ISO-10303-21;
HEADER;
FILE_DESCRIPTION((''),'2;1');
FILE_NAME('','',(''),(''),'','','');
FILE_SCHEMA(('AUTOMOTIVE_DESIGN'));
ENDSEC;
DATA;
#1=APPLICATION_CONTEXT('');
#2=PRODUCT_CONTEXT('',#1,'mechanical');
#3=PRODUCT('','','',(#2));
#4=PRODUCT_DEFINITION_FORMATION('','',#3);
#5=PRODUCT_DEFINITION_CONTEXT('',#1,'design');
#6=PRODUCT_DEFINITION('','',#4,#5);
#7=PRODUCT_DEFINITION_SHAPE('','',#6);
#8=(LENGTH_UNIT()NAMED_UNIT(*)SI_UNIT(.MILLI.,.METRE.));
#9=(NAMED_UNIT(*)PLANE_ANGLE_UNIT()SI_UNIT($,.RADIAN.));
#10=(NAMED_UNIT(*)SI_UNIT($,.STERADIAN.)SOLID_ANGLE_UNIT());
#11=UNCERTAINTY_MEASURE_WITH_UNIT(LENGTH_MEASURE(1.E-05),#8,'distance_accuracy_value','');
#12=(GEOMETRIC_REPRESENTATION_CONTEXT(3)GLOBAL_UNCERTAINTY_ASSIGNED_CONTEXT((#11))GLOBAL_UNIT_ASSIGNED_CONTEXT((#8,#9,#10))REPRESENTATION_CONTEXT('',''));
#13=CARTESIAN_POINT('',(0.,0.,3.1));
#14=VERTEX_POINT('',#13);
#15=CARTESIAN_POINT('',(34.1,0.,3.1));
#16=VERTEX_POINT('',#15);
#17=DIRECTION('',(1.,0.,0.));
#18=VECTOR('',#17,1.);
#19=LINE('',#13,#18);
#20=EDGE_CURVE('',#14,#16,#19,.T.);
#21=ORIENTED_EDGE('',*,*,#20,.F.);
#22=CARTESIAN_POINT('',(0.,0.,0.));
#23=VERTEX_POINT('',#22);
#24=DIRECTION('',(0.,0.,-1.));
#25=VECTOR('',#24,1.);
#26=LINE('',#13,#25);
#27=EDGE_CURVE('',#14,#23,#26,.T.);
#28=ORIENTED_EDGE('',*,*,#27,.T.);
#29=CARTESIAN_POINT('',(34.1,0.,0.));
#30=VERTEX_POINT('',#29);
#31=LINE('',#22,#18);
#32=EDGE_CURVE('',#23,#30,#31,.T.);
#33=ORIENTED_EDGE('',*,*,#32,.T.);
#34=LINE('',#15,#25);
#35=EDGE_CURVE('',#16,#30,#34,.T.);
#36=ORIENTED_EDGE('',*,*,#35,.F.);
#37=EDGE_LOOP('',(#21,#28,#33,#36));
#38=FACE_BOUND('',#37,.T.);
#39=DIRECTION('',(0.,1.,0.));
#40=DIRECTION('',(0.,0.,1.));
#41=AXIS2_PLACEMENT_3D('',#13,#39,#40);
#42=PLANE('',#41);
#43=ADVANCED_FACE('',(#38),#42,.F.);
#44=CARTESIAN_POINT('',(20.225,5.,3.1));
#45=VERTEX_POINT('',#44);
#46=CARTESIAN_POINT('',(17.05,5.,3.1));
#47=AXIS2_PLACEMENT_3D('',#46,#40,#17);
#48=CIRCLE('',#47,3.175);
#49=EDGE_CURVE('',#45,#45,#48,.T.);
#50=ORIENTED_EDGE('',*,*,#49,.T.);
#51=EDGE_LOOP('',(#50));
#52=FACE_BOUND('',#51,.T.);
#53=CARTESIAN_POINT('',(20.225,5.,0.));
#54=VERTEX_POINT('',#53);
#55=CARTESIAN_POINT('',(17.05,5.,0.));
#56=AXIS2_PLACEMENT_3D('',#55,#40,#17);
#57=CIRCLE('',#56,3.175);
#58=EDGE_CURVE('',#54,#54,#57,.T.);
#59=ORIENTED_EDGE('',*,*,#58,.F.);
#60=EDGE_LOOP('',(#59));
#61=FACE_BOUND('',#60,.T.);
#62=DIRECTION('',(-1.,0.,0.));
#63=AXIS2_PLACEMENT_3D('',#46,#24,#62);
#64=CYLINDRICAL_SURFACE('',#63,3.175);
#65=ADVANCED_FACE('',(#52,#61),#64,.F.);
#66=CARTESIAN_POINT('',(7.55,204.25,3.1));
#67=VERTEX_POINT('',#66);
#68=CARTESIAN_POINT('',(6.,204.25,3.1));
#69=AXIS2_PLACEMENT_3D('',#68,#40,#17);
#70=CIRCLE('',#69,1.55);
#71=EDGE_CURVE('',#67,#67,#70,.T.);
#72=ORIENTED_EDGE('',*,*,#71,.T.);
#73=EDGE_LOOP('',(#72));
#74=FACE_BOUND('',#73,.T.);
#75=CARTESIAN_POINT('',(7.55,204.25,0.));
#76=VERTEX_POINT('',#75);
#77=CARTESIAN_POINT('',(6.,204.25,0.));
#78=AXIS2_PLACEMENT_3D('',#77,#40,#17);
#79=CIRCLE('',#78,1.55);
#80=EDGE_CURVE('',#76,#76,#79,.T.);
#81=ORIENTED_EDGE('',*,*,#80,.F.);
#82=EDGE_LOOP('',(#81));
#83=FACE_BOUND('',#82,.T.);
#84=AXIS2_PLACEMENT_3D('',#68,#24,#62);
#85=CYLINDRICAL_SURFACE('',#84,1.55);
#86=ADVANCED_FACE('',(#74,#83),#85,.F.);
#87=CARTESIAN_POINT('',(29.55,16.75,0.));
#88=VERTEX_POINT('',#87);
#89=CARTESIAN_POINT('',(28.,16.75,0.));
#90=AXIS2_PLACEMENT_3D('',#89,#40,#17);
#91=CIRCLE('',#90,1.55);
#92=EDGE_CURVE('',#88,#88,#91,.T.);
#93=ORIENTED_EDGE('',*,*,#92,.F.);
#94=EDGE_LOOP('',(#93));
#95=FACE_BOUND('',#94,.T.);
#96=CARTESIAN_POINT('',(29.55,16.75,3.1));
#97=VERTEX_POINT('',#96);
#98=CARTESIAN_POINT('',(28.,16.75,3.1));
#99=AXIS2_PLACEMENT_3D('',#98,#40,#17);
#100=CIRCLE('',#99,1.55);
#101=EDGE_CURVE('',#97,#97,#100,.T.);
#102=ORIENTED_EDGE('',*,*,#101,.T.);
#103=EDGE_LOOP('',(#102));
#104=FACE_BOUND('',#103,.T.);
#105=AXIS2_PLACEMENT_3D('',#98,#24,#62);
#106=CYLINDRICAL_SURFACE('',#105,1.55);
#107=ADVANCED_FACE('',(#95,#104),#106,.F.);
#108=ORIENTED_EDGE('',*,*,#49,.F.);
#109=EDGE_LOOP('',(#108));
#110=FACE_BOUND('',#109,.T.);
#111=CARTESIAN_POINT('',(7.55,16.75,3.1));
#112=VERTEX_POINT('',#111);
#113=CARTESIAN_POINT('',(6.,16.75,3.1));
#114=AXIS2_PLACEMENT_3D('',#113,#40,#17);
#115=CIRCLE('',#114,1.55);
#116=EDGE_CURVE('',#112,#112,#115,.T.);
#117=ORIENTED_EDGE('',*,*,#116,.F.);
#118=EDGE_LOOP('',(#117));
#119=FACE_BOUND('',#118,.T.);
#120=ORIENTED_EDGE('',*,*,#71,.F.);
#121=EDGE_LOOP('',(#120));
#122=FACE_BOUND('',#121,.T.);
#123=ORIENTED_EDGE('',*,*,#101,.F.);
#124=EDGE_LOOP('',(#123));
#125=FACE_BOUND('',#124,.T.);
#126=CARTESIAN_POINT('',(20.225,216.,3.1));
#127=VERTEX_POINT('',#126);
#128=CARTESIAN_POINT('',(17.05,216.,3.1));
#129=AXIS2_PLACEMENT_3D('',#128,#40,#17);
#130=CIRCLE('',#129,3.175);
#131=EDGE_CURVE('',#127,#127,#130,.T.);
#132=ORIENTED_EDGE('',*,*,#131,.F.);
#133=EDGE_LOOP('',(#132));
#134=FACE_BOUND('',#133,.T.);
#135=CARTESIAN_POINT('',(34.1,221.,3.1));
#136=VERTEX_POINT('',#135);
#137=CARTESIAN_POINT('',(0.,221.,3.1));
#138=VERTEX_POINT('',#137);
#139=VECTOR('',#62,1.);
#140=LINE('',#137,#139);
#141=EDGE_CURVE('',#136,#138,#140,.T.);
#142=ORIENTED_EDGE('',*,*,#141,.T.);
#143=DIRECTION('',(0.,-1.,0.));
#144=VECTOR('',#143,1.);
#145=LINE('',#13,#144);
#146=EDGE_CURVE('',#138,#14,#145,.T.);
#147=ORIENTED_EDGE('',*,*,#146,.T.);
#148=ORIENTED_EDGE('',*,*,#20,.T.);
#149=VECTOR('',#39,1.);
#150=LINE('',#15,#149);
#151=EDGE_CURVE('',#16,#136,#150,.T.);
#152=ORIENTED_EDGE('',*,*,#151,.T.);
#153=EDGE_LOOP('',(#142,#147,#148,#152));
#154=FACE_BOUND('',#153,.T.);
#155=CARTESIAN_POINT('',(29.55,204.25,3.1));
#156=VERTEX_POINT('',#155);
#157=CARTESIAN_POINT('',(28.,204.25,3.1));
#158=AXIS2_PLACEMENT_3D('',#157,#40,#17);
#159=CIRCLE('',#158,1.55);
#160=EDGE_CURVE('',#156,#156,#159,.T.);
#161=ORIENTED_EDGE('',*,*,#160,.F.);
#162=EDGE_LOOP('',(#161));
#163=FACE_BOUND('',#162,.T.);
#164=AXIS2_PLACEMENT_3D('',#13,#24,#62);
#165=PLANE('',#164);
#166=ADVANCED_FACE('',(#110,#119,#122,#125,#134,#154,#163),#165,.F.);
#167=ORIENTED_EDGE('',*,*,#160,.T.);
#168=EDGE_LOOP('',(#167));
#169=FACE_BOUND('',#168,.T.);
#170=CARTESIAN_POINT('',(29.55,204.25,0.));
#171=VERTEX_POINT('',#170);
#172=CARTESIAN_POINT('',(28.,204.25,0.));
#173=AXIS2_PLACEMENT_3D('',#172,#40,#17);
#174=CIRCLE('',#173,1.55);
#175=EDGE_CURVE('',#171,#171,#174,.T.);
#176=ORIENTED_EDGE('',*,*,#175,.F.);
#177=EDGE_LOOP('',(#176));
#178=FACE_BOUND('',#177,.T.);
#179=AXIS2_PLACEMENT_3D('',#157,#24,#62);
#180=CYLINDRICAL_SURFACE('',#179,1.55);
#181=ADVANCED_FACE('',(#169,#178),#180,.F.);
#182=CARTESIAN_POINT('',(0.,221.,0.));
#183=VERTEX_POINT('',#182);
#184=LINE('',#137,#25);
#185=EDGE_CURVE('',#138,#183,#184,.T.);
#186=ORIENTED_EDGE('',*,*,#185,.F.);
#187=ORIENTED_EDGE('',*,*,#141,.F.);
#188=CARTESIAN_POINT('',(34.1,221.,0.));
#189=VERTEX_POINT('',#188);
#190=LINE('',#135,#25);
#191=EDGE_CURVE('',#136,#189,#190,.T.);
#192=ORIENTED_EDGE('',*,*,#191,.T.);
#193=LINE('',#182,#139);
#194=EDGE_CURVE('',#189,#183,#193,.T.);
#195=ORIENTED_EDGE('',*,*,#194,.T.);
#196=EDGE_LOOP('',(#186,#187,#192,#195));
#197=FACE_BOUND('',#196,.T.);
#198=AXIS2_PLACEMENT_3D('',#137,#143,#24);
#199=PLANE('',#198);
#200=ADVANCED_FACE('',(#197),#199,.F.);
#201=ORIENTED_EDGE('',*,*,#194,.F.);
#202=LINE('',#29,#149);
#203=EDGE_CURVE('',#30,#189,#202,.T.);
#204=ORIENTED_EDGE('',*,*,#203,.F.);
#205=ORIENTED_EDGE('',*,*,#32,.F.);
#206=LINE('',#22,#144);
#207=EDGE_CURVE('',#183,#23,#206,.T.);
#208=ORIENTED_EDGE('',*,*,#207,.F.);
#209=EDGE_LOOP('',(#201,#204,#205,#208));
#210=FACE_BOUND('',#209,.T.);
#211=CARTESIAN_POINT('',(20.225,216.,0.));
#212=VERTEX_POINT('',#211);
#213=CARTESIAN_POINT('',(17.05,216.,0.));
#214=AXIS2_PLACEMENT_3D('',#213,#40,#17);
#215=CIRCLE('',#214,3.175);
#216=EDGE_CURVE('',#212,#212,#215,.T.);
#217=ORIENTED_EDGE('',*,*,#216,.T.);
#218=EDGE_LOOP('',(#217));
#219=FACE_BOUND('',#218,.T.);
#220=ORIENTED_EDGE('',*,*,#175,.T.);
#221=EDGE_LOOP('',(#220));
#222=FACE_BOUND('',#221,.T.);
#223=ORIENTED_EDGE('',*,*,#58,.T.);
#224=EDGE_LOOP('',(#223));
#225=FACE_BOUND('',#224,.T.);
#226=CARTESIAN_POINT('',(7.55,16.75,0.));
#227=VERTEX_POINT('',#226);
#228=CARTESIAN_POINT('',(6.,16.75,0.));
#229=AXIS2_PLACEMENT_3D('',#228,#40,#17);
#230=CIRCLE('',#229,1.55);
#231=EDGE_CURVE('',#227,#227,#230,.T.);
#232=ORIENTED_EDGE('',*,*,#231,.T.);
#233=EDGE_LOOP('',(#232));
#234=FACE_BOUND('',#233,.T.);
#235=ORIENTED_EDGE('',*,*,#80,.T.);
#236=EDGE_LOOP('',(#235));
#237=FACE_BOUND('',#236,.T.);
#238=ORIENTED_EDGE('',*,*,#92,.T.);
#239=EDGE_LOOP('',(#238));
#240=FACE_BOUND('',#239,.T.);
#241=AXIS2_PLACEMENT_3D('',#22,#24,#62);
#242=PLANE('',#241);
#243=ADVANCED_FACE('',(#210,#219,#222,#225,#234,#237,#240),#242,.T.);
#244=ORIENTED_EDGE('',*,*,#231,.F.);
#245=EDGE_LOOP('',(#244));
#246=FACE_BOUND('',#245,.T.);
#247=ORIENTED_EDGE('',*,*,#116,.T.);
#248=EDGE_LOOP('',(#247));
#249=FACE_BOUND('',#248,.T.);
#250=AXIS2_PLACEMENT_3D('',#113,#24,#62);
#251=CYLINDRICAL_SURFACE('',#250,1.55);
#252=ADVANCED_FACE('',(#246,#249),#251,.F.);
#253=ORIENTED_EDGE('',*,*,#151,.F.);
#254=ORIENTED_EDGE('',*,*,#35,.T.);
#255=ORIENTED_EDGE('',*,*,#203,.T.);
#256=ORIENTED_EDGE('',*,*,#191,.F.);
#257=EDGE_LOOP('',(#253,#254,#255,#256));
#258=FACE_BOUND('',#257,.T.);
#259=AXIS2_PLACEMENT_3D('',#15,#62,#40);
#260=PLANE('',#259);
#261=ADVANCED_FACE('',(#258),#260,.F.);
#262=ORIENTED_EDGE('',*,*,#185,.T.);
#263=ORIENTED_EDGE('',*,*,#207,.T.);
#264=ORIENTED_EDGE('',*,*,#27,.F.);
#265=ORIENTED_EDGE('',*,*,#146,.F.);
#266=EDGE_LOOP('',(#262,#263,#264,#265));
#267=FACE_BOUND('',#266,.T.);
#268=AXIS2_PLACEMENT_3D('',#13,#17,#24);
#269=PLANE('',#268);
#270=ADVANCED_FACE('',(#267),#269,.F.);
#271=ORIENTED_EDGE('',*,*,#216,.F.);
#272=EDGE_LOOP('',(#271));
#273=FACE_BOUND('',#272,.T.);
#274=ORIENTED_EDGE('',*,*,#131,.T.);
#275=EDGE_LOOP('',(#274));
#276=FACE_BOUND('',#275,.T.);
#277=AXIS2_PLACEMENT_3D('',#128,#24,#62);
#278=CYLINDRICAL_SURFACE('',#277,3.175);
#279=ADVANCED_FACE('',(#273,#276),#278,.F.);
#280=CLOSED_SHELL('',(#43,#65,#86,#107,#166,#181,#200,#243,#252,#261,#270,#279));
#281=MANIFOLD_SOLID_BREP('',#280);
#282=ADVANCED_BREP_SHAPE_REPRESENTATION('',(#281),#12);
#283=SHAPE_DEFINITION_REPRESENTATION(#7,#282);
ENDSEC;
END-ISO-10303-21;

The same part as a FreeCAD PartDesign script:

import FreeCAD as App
import Part
import Sketcher

doc = App.newDocument("Part")
body = doc.addObject("PartDesign::Body", "Body")

# Sketch on XY plane
sketch1 = body.newObject("Sketcher::SketchObject", "Sketch")
sketch1.AttachmentSupport = (doc.getObject("XY_Plane"), [""])
sketch1.MapMode = "FlatFace"
sketch1.addGeometry(Part.LineSegment(App.Vector(0, 221, 0), App.Vector(0, 0, 0)), False)
sketch1.addGeometry(Part.LineSegment(App.Vector(0, 0, 0), App.Vector(34.1, 0, 0)), False)
sketch1.addGeometry(Part.LineSegment(App.Vector(34.1, 0, 0), App.Vector(34.1, 221, 0)), False)
sketch1.addGeometry(Part.LineSegment(App.Vector(34.1, 221, 0), App.Vector(0, 221, 0)), False)
sketch1.addGeometry(Part.Circle(App.Vector(6, 16.75, 0), App.Vector(0, 0, 1), 1.55), False)
sketch1.addGeometry(Part.Circle(App.Vector(17.05, 5, 0), App.Vector(0, 0, 1), 3.175), False)
sketch1.addGeometry(Part.Circle(App.Vector(28, 16.75, 0), App.Vector(0, 0, 1), 1.55), False)
sketch1.addGeometry(Part.Circle(App.Vector(6, 204.25, 0), App.Vector(0, 0, 1), 1.55), False)
sketch1.addGeometry(Part.Circle(App.Vector(17.05, 216, 0), App.Vector(0, 0, 1), 3.175), False)
sketch1.addGeometry(Part.Circle(App.Vector(28, 204.25, 0), App.Vector(0, 0, 1), 1.55), False)
sketch1.addConstraint(Sketcher.Constraint("Coincident", 0, 2, 1, 1))
sketch1.addConstraint(Sketcher.Constraint("Coincident", 1, 2, 2, 1))
sketch1.addConstraint(Sketcher.Constraint("Coincident", 2, 2, 3, 1))
sketch1.addConstraint(Sketcher.Constraint("Coincident", 3, 2, 0, 1))
sketch1.addConstraint(Sketcher.Constraint("Vertical", 0))
sketch1.addConstraint(Sketcher.Constraint("Horizontal", 1))
sketch1.addConstraint(Sketcher.Constraint("Vertical", 2))
sketch1.addConstraint(Sketcher.Constraint("Horizontal", 3))
sketch1.addConstraint(Sketcher.Constraint("Coincident", 0, 2, -1, 1))
sketch1.addConstraint(Sketcher.Constraint("Equal", 4, 6))
sketch1.addConstraint(Sketcher.Constraint("Equal", 6, 7))
sketch1.addConstraint(Sketcher.Constraint("Equal", 5, 8))
sketch1.addConstraint(Sketcher.Constraint("Equal", 7, 9))
sketch1.addConstraint(Sketcher.Constraint("Horizontal", 4, 3, 6, 3))
sketch1.addConstraint(Sketcher.Constraint("Horizontal", 7, 3, 9, 3))
sketch1.addConstraint(Sketcher.Constraint("Vertical", 4, 3, 7, 3))
sketch1.addConstraint(Sketcher.Constraint("Vertical", 5, 3, 8, 3))
sketch1.addConstraint(Sketcher.Constraint("Vertical", 6, 3, 9, 3))
sketch1.addConstraint(Sketcher.Constraint("Diameter", 4, 3.1))
sketch1.addConstraint(Sketcher.Constraint("Diameter", 5, 6.35))
sketch1.addConstraint(Sketcher.Constraint("DistanceY", 0, 2, 0, 1, 221.0))
sketch1.addConstraint(Sketcher.Constraint("DistanceX", 1, 1, 1, 2, 34.1))
sketch1.addConstraint(Sketcher.Constraint("DistanceX", -1, 1, 4, 3, 6.0))
sketch1.addConstraint(Sketcher.Constraint("DistanceY", -1, 1, 5, 3, 5.0))
sketch1.addConstraint(Sketcher.Constraint("DistanceX", -1, 1, 6, 3, 28.0))
sketch1.addConstraint(Sketcher.Constraint("DistanceY", -1, 1, 8, 3, 216.0))
sketch1.addConstraint(Sketcher.Constraint("DistanceY", 4, 3, 7, 3, 187.5))
sketch1.addConstraint(Sketcher.Constraint("DistanceY", -1, 1, 4, 3, 16.75))
sketch1.addConstraint(Sketcher.Constraint("DistanceX", -1, 1, 5, 3, 17.05))
pad1 = body.newObject("PartDesign::Pad", "Pad")
pad1.Profile = sketch1
pad1.Length = 3.1

doc.recompute()
